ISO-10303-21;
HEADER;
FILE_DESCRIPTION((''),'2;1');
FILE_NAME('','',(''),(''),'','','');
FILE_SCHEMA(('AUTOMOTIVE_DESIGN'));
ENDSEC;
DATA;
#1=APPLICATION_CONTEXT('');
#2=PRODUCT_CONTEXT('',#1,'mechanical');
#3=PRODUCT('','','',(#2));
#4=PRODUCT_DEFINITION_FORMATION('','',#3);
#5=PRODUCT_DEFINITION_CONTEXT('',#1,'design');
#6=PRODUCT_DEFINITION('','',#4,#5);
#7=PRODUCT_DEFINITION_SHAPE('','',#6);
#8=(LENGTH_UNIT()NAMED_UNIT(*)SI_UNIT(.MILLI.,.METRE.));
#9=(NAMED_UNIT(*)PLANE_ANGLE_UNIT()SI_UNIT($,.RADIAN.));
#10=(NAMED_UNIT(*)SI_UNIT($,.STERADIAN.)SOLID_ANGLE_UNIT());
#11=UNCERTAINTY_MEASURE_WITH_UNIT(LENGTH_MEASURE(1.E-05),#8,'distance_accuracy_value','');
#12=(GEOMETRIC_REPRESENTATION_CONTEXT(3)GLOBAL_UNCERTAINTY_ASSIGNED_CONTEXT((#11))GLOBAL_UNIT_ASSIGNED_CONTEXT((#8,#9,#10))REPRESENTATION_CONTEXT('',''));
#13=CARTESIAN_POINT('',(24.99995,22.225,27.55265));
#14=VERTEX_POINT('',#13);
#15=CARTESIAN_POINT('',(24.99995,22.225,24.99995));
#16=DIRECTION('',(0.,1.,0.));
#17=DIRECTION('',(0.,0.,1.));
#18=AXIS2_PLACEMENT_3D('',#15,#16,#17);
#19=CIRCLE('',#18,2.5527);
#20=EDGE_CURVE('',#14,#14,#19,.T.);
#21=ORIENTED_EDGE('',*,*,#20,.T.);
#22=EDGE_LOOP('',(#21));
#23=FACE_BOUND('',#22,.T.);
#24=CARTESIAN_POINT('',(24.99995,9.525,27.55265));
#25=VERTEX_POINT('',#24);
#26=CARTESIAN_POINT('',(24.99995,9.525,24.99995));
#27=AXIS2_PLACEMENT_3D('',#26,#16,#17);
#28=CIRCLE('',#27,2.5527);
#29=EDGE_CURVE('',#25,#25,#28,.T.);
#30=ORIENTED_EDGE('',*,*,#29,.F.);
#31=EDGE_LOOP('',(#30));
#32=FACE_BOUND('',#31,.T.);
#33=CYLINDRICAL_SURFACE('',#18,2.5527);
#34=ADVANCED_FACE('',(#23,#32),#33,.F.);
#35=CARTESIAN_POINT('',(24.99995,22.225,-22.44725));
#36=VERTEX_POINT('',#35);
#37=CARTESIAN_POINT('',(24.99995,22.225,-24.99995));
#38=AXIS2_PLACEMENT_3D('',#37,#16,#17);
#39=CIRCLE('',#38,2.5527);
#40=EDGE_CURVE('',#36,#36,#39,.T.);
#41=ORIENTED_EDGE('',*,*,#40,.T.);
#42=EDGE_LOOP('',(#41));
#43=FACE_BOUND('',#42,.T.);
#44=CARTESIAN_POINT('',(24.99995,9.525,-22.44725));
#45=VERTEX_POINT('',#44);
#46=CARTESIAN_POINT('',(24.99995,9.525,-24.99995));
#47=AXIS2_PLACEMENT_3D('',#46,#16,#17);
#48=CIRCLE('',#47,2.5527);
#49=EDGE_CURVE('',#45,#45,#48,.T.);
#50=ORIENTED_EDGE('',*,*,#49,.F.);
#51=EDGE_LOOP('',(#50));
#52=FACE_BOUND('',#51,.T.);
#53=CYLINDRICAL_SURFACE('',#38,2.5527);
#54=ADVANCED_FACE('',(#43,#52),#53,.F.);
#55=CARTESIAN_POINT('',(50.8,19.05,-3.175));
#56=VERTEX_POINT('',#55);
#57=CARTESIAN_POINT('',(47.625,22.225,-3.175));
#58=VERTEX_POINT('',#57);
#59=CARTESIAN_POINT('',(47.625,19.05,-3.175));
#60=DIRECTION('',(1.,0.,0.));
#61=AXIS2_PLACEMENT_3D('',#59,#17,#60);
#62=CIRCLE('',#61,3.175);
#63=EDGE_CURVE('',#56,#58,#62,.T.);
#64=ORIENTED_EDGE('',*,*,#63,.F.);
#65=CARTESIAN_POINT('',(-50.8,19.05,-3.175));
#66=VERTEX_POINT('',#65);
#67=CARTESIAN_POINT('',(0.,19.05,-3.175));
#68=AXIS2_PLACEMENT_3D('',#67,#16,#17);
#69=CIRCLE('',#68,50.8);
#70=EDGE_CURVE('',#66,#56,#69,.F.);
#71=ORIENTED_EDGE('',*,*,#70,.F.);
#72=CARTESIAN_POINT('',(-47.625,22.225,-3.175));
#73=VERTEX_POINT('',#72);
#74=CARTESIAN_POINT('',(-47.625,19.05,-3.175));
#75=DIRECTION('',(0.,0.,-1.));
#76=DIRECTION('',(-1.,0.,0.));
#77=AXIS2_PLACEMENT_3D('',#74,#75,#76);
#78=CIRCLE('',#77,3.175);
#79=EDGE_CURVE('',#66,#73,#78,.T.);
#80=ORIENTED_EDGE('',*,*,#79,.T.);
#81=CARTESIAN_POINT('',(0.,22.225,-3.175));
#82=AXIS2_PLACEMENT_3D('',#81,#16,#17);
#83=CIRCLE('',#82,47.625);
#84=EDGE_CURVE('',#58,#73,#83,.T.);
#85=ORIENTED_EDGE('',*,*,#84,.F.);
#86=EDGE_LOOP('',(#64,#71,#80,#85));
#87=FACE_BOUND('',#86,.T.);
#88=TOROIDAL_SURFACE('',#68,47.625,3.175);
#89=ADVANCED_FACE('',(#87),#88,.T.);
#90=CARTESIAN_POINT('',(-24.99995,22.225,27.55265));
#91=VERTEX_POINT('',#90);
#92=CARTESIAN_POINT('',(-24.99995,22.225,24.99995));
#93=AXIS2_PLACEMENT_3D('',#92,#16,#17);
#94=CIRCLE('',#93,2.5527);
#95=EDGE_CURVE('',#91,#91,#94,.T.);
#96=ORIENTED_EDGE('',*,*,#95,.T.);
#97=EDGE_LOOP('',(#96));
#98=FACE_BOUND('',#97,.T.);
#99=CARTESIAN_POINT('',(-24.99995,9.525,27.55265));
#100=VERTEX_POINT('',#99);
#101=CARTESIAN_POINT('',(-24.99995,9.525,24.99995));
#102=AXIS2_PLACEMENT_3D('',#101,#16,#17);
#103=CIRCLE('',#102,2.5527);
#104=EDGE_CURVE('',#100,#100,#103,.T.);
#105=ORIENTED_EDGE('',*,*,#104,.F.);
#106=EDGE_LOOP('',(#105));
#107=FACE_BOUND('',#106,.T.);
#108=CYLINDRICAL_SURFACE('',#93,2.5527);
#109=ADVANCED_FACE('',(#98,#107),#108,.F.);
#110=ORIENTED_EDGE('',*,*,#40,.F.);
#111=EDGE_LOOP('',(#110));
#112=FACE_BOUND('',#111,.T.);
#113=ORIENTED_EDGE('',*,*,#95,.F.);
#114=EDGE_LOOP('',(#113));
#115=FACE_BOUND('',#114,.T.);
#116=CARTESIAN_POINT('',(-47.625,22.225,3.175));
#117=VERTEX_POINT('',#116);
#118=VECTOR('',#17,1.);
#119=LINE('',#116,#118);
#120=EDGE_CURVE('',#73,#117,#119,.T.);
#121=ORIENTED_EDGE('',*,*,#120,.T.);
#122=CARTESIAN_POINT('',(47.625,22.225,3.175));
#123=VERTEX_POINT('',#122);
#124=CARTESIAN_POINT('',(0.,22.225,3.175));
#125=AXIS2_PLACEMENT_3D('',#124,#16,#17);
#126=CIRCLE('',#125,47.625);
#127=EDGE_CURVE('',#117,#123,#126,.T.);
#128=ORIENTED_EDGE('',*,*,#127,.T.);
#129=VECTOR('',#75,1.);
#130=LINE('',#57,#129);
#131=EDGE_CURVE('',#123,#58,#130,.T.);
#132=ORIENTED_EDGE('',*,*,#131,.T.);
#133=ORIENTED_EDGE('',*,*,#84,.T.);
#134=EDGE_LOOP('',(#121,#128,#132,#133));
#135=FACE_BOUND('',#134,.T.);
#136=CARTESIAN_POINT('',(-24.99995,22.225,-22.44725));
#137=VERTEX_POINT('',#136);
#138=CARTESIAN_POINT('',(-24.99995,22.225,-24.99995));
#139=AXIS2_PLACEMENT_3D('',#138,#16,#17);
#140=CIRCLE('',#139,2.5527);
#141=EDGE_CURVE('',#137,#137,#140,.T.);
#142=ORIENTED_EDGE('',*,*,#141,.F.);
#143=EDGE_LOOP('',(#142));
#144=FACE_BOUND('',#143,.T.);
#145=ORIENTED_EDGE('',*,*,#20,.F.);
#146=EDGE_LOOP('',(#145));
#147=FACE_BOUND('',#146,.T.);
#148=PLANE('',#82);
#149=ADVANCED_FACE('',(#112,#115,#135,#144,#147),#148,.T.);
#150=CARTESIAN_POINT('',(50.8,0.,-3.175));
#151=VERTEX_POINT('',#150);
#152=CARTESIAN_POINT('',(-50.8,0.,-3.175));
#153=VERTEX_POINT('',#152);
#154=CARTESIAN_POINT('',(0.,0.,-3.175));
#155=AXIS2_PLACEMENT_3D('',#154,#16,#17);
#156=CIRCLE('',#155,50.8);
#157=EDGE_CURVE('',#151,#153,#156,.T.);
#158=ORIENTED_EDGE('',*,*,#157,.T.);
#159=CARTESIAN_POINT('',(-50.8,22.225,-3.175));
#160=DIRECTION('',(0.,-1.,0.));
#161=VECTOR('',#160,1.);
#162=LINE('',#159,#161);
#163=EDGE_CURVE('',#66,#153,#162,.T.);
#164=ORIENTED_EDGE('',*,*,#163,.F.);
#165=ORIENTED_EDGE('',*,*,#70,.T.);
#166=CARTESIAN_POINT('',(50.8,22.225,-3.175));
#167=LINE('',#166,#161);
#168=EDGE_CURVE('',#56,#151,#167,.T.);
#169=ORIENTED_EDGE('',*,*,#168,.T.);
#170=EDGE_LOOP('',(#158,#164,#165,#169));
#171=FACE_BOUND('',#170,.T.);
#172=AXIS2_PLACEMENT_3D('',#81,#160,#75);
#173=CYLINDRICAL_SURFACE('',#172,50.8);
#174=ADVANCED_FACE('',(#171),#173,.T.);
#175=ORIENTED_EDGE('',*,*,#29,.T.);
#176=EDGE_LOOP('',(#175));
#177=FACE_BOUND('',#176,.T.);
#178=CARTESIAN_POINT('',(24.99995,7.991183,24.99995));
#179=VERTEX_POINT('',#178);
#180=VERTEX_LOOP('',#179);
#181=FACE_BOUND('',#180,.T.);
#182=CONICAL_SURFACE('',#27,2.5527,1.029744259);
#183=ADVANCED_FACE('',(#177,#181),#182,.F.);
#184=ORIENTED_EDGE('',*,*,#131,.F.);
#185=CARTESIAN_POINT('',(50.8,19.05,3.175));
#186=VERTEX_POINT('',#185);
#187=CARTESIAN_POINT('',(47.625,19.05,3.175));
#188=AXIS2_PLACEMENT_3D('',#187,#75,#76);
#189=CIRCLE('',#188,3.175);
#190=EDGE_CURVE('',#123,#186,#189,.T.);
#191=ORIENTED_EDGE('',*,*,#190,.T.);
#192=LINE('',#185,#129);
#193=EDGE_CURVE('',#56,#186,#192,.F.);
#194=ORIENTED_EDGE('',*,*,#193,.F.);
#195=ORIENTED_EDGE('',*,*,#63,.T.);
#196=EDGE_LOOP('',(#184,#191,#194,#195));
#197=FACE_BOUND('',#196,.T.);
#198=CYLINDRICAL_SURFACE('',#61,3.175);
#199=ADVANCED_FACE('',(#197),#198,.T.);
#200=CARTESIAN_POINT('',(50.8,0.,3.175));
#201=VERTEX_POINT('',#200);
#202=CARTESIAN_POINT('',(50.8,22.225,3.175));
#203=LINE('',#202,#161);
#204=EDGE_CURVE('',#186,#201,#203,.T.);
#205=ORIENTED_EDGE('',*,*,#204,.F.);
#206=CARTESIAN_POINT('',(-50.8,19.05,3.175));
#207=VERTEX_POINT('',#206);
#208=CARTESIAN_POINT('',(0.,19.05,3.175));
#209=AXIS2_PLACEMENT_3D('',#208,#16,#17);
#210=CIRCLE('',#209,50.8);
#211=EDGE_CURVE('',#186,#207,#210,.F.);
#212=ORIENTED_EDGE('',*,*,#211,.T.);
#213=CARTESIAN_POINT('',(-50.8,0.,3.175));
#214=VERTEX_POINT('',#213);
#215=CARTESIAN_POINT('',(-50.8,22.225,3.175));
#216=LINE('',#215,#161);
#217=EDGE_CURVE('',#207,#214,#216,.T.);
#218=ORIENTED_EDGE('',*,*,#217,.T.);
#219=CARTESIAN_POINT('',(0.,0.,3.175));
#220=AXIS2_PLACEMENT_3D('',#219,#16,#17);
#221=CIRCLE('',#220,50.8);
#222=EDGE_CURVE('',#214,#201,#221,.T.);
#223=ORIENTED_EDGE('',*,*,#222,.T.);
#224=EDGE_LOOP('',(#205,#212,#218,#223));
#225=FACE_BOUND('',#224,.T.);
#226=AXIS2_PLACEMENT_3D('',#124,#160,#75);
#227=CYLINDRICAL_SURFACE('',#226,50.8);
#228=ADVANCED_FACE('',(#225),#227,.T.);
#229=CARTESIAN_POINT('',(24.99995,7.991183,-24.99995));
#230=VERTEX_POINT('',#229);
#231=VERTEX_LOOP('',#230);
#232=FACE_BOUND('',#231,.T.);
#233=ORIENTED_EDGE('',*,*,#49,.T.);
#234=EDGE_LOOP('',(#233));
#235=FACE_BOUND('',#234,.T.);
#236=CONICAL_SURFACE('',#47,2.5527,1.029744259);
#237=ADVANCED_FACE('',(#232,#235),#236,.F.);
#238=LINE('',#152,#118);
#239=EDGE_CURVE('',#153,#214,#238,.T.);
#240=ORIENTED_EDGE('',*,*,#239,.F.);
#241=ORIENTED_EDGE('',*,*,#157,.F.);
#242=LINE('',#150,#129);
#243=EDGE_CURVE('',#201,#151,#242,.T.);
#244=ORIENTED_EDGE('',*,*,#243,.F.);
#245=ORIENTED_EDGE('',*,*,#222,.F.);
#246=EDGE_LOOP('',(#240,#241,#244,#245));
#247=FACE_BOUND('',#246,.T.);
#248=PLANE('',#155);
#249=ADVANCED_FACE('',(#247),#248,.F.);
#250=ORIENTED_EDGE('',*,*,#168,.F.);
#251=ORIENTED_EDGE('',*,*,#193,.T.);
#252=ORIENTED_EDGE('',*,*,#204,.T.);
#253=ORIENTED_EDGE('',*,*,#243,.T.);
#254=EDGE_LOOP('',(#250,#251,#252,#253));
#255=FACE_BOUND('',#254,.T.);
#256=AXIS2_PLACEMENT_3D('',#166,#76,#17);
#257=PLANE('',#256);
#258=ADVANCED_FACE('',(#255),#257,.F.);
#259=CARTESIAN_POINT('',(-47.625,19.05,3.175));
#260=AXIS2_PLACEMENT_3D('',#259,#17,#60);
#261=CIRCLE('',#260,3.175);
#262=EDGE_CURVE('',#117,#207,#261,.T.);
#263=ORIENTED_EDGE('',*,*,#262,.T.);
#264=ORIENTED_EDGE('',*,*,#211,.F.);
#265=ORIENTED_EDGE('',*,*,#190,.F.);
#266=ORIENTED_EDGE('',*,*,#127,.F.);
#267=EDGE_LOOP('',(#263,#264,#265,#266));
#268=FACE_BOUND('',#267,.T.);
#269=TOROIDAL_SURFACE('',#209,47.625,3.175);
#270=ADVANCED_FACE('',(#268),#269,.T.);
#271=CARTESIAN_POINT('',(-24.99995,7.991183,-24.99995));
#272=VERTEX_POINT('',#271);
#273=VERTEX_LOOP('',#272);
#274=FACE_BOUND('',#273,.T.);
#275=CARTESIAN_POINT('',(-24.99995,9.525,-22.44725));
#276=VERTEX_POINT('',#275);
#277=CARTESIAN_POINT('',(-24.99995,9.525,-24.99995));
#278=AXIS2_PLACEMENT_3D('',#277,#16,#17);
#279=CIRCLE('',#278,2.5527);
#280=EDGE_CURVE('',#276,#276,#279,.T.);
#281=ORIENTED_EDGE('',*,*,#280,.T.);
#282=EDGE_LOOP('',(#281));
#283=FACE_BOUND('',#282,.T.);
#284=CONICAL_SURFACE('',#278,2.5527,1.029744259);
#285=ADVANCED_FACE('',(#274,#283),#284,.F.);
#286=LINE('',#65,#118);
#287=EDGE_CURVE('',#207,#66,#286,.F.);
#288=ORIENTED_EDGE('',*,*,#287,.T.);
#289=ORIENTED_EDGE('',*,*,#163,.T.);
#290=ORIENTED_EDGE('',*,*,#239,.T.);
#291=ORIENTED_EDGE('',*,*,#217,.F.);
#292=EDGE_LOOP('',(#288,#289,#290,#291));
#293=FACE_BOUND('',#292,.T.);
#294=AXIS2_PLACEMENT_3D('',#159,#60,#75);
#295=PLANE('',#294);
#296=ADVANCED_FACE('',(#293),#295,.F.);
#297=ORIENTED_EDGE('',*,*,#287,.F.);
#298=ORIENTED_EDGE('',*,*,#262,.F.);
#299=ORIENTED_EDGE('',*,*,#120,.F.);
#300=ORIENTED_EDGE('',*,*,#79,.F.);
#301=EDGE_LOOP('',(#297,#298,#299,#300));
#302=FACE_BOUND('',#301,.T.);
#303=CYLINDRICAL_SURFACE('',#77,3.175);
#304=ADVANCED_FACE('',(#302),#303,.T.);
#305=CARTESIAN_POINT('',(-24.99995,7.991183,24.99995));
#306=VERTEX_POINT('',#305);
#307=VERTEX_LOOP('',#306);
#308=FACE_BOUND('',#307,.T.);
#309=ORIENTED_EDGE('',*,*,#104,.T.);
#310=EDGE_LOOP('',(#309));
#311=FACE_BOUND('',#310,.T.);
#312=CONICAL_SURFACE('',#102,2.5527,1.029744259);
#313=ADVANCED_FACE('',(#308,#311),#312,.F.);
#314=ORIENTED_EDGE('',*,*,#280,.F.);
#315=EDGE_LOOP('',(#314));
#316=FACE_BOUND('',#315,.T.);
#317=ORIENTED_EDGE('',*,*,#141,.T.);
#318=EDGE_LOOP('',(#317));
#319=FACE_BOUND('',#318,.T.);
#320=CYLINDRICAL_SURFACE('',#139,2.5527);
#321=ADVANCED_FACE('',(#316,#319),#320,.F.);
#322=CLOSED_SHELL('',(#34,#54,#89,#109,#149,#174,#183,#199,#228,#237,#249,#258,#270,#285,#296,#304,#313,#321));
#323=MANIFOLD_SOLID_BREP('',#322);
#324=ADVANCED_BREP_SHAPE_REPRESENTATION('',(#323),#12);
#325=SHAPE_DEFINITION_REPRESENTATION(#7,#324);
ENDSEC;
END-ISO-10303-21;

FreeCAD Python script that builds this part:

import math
import FreeCAD as App
import Part
import Sketcher
from FreeCAD import Vector
Q = App.Units.Quantity


def edges_at(feature, points):
    """Names of the edges that pass closest to the given points."""
    edges = feature.Shape.Edges
    near = lambda p: min(range(len(edges)), key=lambda i: edges[i].distToShape(Part.Vertex(*p))[0])
    return sorted({f"Edge{near(p) + 1}" for p in points})

doc = App.newDocument("Part")
params = doc.addObject("Spreadsheet::Sheet", "Params")
for row, (alias, value) in enumerate([
    ("sketch1_radius", "2 in"),
    ("sketch1_height", "0.25 in"),
    ("pad1_length", "0.875 in"),
    ("sketch2_diameter", "0.201 in"),
    ("hole_diameter", "0.201 in"),
    ("hole_depth", "0.5 in"),
    ("fillet_radius", "0.125 in"),
], start=1):
    params.set(f"A{row}", alias)
    params.set(f"B{row}", "=" + value)
    params.setAlias(f"B{row}", alias)

body = doc.addObject("PartDesign::Body", "Body")

sketch1 = body.newObject("Sketcher::SketchObject", "Sketch")
sketch1.AttachmentSupport = (doc.getObject("XZ_Plane"), [""])
sketch1.MapMode = "FlatFace"
sketch1.addGeometry([
    Part.LineSegment(Vector(51, 3, 0), Vector(51, -3, 0)),
    Part.ArcOfCircle(Part.Circle(Vector(0, -3, 0), Vector(0, 0, 1), 51), math.radians(180), math.radians(360)),
    Part.LineSegment(Vector(-51, -3, 0), Vector(-51, 3, 0)),
    Part.ArcOfCircle(Part.Circle(Vector(0, 3, 0), Vector(0, 0, 1), 51), math.radians(0), math.radians(180)),
], False)
sketch1.addConstraint([
    Sketcher.Constraint("Tangent", 0, 2, 1, 2),
    Sketcher.Constraint("Tangent", 1, 1, 2, 1),
    Sketcher.Constraint("Tangent", 2, 2, 3, 2),
    Sketcher.Constraint("Tangent", 3, 1, 0, 1),
    Sketcher.Constraint("Vertical", 0),
    Sketcher.Constraint("Vertical", 2),
    Sketcher.Constraint("Symmetric", 1, 3, 3, 3, -1, 1),
    Sketcher.Constraint("Radius", 1, Q("2 in")),
    Sketcher.Constraint("DistanceY", 0, 2, 0, 1, Q("0.25 in")),
])
sketch1.setExpression("Constraints[7]", "Params.sketch1_radius")
sketch1.setExpression("Constraints[8]", "Params.sketch1_height")
pad1 = body.newObject("PartDesign::Pad", "Pad")
pad1.Profile = sketch1
pad1.setExpression("Length", "Params.pad1_length")
pad1.Reversed = True

sketch2 = body.newObject("Sketcher::SketchObject", "Sketch001")
sketch2.AttachmentSupport = (doc.getObject("XZ_Plane"), [""])
sketch2.MapMode = "FlatFace"
sketch2.AttachmentOffset = App.Placement(Vector(0, 0, -0.875 * 25.4), App.Rotation())
sketch2.addGeometry([
    Part.Circle(Vector(-25, -25, 0), Vector(0, 0, 1), 2.6),
    Part.Circle(Vector(25, -25, 0), Vector(0, 0, 1), 2.6),
    Part.Circle(Vector(25, 25, 0), Vector(0, 0, 1), 2.6),
    Part.Circle(Vector(-25, 25, 0), Vector(0, 0, 1), 2.6),
], False)
sketch2.addConstraint([
    Sketcher.Constraint("Equal", 0, 1),
    Sketcher.Constraint("Equal", 1, 2),
    Sketcher.Constraint("Equal", 2, 3),
    Sketcher.Constraint("Symmetric", 0, 3, 2, 3, -1, 1),
    Sketcher.Constraint("Symmetric", 1, 3, 3, 3, -1, 1),
    Sketcher.Constraint("Symmetric", 0, 3, 1, 3, -2),
    Sketcher.Constraint("Diameter", 0, Q("0.201 in")),
    Sketcher.Constraint("DistanceX", 0, 3, 1, 3, Q("1.9685 in")),
    Sketcher.Constraint("DistanceY", 1, 3, 2, 3, Q("1.9685 in")),
])
sketch2.setExpression("Constraints[6]", "Params.sketch2_diameter")
doc.recompute()
hole = body.newObject("PartDesign::Hole", "Hole")
hole.Profile = sketch2
hole.ThreadType = "None"
hole.setExpression("Diameter", "Params.hole_diameter")
hole.DepthType = "Dimension"
hole.setExpression("Depth", "Params.hole_depth")
hole.DrillPoint = "Angled"
hole.DrillPointAngle = 118
hole.Reversed = True
doc.recompute()

fillet = body.newObject("PartDesign::Fillet", "Fillet")
fillet.Base = (hole, edges_at(hole, [
    (0, 22.225, 53.975),
    (50.8, 22.225, 0),
    (0, 22.225, -53.975),
    (-50.8, 22.225, 0),
]))
fillet.setExpression("Radius", "Params.fillet_radius")

doc.recompute()
